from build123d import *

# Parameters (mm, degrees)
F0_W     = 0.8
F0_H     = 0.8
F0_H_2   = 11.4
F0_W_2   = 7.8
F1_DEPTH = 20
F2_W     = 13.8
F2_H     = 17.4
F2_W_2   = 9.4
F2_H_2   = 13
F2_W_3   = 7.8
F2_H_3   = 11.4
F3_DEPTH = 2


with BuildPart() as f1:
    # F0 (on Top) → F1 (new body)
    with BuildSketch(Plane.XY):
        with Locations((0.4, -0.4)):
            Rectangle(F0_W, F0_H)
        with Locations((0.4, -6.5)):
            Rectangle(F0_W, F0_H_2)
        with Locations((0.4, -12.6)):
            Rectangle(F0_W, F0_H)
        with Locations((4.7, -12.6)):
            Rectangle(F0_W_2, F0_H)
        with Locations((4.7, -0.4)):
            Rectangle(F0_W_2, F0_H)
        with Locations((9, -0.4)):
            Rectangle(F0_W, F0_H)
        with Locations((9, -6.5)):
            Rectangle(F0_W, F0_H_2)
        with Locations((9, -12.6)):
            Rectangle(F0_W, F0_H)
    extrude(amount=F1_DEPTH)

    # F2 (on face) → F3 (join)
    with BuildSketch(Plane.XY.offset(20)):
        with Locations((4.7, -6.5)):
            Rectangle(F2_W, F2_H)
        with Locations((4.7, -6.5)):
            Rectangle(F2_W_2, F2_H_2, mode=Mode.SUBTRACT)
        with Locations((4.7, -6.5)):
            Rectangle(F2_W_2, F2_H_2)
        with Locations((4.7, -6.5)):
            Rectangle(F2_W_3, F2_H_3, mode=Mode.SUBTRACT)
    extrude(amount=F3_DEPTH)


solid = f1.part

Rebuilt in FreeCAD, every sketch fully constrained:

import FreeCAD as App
import Part
import Sketcher

V = App.Vector
Q = App.Units.Quantity


def add_polygon(sketch, points):
    """Adds a closed chain of lines whose ends are joined by coincident constraints."""
    first, n = sketch.GeometryCount, len(points)
    for a, b in zip(points, points[1:] + points[:1]):
        sketch.addGeometry(Part.LineSegment(App.Vector(*a, 0), App.Vector(*b, 0)), False)
    for i in range(n):
        sketch.addConstraint(Sketcher.Constraint("Coincident", first + i, 2, first + (i + 1) % n, 1))

doc = App.newDocument("Part")
params = doc.addObject("Spreadsheet::Sheet", "Params")
for row, (alias, value) in enumerate([
    ("sketch1_height", "13 mm"),
    ("sketch1_width", "9.4 mm"),
    ("sketch1_width2", "7.8 mm"),
    ("sketch1_height2", "11.4 mm"),
    ("pad1_length", "20 mm"),
    ("sketch2_width", "13.8 mm"),
    ("sketch2_width2", "7.8 mm"),
    ("sketch2_height", "17.4 mm"),
    ("sketch2_height2", "11.4 mm"),
    ("pad2_length", "2 mm"),
], start=1):
    params.set(f"A{row}", alias)
    params.set(f"B{row}", "=" + value)
    params.setAlias(f"B{row}", alias)

body = doc.addObject("PartDesign::Body", "Body")

sketch1 = body.newObject("Sketcher::SketchObject", "Sketch")
sketch1.AttachmentSupport = (doc.getObject("XY_Plane"), [""])
sketch1.MapMode = "FlatFace"
add_polygon(sketch1, [(0, -13), (9.4, -13), (9.4, 0), (0, 0)])
add_polygon(sketch1, [(8.6, -12.2), (0.8, -12.2), (0.8, -0.8), (8.6, -0.8)])
sketch1.addConstraint(Sketcher.Constraint("Horizontal", 0))
sketch1.addConstraint(Sketcher.Constraint("Vertical", 1))
sketch1.addConstraint(Sketcher.Constraint("Horizontal", 2))
sketch1.addConstraint(Sketcher.Constraint("Vertical", 3))
sketch1.addConstraint(Sketcher.Constraint("Horizontal", 4))
sketch1.addConstraint(Sketcher.Constraint("Vertical", 5))
sketch1.addConstraint(Sketcher.Constraint("Horizontal", 6))
sketch1.addConstraint(Sketcher.Constraint("Vertical", 7))
sketch1.addConstraint(Sketcher.Constraint("Coincident", 2, 2, -1, 1))
sketch1.addConstraint(Sketcher.Constraint("DistanceY", 1, 1, 1, 2, Q("13 mm")))
sketch1.addConstraint(Sketcher.Constraint("DistanceX", 0, 1, 0, 2, Q("9.4 mm")))
sketch1.addConstraint(Sketcher.Constraint("DistanceX", 4, 2, 4, 1, Q("7.8 mm")))
sketch1.addConstraint(Sketcher.Constraint("DistanceY", 5, 1, 5, 2, Q("11.4 mm")))
sketch1.addConstraint(Sketcher.Constraint("DistanceX", -1, 1, 4, 2, Q("0.8 mm")))
sketch1.addConstraint(Sketcher.Constraint("DistanceY", 4, 2, -1, 1, Q("12.2 mm")))
sketch1.setExpression("Constraints[17]", "Params.sketch1_height")
sketch1.setExpression("Constraints[18]", "Params.sketch1_width")
sketch1.setExpression("Constraints[19]", "Params.sketch1_width2")
sketch1.setExpression("Constraints[20]", "Params.sketch1_height2")
pad1 = body.newObject("PartDesign::Pad", "Pad")
pad1.Profile = sketch1
pad1.setExpression("Length", "Params.pad1_length")

sketch2 = body.newObject("Sketcher::SketchObject", "Sketch001")
sketch2.AttachmentSupport = (doc.getObject("XY_Plane"), [""])
sketch2.MapMode = "FlatFace"
sketch2.AttachmentOffset = App.Placement(V(0, 0, 20), App.Rotation())
add_polygon(sketch2, [(-2.2, 2.2), (-2.2, -15.2), (11.6, -15.2), (11.6, 2.2)])
add_polygon(sketch2, [(8.6, -12.2), (0.8, -12.2), (0.8, -0.8), (8.6, -0.8)])
sketch2.addConstraint(Sketcher.Constraint("Vertical", 0))
sketch2.addConstraint(Sketcher.Constraint("Horizontal", 1))
sketch2.addConstraint(Sketcher.Constraint("Vertical", 2))
sketch2.addConstraint(Sketcher.Constraint("Horizontal", 3))
sketch2.addConstraint(Sketcher.Constraint("Horizontal", 4))
sketch2.addConstraint(Sketcher.Constraint("Vertical", 5))
sketch2.addConstraint(Sketcher.Constraint("Horizontal", 6))
sketch2.addConstraint(Sketcher.Constraint("Vertical", 7))
sketch2.addConstraint(Sketcher.Constraint("DistanceX", 1, 1, 1, 2, Q("13.8 mm")))
sketch2.addConstraint(Sketcher.Constraint("DistanceX", 4, 2, 4, 1, Q("7.8 mm")))
sketch2.addConstraint(Sketcher.Constraint("DistanceY", 0, 2, 0, 1, Q("17.4 mm")))
sketch2.addConstraint(Sketcher.Constraint("DistanceY", 5, 1, 5, 2, Q("11.4 mm")))
sketch2.addConstraint(Sketcher.Constraint("DistanceX", 0, 2, 4, 2, Q("3 mm")))
sketch2.addConstraint(Sketcher.Constraint("DistanceY", 0, 2, 4, 2, Q("3 mm")))
sketch2.addConstraint(Sketcher.Constraint("DistanceX", 0, 2, -1, 1, Q("2.2 mm")))
sketch2.addConstraint(Sketcher.Constraint("DistanceY", 0, 2, -1, 1, Q("15.2 mm")))
sketch2.setExpression("Constraints[16]", "Params.sketch2_width")
sketch2.setExpression("Constraints[17]", "Params.sketch2_width2")
sketch2.setExpression("Constraints[18]", "Params.sketch2_height")
sketch2.setExpression("Constraints[19]", "Params.sketch2_height2")
pad2 = body.newObject("PartDesign::Pad", "Pad001")
pad2.Profile = sketch2
pad2.setExpression("Length", "Params.pad2_length")

doc.recompute()
